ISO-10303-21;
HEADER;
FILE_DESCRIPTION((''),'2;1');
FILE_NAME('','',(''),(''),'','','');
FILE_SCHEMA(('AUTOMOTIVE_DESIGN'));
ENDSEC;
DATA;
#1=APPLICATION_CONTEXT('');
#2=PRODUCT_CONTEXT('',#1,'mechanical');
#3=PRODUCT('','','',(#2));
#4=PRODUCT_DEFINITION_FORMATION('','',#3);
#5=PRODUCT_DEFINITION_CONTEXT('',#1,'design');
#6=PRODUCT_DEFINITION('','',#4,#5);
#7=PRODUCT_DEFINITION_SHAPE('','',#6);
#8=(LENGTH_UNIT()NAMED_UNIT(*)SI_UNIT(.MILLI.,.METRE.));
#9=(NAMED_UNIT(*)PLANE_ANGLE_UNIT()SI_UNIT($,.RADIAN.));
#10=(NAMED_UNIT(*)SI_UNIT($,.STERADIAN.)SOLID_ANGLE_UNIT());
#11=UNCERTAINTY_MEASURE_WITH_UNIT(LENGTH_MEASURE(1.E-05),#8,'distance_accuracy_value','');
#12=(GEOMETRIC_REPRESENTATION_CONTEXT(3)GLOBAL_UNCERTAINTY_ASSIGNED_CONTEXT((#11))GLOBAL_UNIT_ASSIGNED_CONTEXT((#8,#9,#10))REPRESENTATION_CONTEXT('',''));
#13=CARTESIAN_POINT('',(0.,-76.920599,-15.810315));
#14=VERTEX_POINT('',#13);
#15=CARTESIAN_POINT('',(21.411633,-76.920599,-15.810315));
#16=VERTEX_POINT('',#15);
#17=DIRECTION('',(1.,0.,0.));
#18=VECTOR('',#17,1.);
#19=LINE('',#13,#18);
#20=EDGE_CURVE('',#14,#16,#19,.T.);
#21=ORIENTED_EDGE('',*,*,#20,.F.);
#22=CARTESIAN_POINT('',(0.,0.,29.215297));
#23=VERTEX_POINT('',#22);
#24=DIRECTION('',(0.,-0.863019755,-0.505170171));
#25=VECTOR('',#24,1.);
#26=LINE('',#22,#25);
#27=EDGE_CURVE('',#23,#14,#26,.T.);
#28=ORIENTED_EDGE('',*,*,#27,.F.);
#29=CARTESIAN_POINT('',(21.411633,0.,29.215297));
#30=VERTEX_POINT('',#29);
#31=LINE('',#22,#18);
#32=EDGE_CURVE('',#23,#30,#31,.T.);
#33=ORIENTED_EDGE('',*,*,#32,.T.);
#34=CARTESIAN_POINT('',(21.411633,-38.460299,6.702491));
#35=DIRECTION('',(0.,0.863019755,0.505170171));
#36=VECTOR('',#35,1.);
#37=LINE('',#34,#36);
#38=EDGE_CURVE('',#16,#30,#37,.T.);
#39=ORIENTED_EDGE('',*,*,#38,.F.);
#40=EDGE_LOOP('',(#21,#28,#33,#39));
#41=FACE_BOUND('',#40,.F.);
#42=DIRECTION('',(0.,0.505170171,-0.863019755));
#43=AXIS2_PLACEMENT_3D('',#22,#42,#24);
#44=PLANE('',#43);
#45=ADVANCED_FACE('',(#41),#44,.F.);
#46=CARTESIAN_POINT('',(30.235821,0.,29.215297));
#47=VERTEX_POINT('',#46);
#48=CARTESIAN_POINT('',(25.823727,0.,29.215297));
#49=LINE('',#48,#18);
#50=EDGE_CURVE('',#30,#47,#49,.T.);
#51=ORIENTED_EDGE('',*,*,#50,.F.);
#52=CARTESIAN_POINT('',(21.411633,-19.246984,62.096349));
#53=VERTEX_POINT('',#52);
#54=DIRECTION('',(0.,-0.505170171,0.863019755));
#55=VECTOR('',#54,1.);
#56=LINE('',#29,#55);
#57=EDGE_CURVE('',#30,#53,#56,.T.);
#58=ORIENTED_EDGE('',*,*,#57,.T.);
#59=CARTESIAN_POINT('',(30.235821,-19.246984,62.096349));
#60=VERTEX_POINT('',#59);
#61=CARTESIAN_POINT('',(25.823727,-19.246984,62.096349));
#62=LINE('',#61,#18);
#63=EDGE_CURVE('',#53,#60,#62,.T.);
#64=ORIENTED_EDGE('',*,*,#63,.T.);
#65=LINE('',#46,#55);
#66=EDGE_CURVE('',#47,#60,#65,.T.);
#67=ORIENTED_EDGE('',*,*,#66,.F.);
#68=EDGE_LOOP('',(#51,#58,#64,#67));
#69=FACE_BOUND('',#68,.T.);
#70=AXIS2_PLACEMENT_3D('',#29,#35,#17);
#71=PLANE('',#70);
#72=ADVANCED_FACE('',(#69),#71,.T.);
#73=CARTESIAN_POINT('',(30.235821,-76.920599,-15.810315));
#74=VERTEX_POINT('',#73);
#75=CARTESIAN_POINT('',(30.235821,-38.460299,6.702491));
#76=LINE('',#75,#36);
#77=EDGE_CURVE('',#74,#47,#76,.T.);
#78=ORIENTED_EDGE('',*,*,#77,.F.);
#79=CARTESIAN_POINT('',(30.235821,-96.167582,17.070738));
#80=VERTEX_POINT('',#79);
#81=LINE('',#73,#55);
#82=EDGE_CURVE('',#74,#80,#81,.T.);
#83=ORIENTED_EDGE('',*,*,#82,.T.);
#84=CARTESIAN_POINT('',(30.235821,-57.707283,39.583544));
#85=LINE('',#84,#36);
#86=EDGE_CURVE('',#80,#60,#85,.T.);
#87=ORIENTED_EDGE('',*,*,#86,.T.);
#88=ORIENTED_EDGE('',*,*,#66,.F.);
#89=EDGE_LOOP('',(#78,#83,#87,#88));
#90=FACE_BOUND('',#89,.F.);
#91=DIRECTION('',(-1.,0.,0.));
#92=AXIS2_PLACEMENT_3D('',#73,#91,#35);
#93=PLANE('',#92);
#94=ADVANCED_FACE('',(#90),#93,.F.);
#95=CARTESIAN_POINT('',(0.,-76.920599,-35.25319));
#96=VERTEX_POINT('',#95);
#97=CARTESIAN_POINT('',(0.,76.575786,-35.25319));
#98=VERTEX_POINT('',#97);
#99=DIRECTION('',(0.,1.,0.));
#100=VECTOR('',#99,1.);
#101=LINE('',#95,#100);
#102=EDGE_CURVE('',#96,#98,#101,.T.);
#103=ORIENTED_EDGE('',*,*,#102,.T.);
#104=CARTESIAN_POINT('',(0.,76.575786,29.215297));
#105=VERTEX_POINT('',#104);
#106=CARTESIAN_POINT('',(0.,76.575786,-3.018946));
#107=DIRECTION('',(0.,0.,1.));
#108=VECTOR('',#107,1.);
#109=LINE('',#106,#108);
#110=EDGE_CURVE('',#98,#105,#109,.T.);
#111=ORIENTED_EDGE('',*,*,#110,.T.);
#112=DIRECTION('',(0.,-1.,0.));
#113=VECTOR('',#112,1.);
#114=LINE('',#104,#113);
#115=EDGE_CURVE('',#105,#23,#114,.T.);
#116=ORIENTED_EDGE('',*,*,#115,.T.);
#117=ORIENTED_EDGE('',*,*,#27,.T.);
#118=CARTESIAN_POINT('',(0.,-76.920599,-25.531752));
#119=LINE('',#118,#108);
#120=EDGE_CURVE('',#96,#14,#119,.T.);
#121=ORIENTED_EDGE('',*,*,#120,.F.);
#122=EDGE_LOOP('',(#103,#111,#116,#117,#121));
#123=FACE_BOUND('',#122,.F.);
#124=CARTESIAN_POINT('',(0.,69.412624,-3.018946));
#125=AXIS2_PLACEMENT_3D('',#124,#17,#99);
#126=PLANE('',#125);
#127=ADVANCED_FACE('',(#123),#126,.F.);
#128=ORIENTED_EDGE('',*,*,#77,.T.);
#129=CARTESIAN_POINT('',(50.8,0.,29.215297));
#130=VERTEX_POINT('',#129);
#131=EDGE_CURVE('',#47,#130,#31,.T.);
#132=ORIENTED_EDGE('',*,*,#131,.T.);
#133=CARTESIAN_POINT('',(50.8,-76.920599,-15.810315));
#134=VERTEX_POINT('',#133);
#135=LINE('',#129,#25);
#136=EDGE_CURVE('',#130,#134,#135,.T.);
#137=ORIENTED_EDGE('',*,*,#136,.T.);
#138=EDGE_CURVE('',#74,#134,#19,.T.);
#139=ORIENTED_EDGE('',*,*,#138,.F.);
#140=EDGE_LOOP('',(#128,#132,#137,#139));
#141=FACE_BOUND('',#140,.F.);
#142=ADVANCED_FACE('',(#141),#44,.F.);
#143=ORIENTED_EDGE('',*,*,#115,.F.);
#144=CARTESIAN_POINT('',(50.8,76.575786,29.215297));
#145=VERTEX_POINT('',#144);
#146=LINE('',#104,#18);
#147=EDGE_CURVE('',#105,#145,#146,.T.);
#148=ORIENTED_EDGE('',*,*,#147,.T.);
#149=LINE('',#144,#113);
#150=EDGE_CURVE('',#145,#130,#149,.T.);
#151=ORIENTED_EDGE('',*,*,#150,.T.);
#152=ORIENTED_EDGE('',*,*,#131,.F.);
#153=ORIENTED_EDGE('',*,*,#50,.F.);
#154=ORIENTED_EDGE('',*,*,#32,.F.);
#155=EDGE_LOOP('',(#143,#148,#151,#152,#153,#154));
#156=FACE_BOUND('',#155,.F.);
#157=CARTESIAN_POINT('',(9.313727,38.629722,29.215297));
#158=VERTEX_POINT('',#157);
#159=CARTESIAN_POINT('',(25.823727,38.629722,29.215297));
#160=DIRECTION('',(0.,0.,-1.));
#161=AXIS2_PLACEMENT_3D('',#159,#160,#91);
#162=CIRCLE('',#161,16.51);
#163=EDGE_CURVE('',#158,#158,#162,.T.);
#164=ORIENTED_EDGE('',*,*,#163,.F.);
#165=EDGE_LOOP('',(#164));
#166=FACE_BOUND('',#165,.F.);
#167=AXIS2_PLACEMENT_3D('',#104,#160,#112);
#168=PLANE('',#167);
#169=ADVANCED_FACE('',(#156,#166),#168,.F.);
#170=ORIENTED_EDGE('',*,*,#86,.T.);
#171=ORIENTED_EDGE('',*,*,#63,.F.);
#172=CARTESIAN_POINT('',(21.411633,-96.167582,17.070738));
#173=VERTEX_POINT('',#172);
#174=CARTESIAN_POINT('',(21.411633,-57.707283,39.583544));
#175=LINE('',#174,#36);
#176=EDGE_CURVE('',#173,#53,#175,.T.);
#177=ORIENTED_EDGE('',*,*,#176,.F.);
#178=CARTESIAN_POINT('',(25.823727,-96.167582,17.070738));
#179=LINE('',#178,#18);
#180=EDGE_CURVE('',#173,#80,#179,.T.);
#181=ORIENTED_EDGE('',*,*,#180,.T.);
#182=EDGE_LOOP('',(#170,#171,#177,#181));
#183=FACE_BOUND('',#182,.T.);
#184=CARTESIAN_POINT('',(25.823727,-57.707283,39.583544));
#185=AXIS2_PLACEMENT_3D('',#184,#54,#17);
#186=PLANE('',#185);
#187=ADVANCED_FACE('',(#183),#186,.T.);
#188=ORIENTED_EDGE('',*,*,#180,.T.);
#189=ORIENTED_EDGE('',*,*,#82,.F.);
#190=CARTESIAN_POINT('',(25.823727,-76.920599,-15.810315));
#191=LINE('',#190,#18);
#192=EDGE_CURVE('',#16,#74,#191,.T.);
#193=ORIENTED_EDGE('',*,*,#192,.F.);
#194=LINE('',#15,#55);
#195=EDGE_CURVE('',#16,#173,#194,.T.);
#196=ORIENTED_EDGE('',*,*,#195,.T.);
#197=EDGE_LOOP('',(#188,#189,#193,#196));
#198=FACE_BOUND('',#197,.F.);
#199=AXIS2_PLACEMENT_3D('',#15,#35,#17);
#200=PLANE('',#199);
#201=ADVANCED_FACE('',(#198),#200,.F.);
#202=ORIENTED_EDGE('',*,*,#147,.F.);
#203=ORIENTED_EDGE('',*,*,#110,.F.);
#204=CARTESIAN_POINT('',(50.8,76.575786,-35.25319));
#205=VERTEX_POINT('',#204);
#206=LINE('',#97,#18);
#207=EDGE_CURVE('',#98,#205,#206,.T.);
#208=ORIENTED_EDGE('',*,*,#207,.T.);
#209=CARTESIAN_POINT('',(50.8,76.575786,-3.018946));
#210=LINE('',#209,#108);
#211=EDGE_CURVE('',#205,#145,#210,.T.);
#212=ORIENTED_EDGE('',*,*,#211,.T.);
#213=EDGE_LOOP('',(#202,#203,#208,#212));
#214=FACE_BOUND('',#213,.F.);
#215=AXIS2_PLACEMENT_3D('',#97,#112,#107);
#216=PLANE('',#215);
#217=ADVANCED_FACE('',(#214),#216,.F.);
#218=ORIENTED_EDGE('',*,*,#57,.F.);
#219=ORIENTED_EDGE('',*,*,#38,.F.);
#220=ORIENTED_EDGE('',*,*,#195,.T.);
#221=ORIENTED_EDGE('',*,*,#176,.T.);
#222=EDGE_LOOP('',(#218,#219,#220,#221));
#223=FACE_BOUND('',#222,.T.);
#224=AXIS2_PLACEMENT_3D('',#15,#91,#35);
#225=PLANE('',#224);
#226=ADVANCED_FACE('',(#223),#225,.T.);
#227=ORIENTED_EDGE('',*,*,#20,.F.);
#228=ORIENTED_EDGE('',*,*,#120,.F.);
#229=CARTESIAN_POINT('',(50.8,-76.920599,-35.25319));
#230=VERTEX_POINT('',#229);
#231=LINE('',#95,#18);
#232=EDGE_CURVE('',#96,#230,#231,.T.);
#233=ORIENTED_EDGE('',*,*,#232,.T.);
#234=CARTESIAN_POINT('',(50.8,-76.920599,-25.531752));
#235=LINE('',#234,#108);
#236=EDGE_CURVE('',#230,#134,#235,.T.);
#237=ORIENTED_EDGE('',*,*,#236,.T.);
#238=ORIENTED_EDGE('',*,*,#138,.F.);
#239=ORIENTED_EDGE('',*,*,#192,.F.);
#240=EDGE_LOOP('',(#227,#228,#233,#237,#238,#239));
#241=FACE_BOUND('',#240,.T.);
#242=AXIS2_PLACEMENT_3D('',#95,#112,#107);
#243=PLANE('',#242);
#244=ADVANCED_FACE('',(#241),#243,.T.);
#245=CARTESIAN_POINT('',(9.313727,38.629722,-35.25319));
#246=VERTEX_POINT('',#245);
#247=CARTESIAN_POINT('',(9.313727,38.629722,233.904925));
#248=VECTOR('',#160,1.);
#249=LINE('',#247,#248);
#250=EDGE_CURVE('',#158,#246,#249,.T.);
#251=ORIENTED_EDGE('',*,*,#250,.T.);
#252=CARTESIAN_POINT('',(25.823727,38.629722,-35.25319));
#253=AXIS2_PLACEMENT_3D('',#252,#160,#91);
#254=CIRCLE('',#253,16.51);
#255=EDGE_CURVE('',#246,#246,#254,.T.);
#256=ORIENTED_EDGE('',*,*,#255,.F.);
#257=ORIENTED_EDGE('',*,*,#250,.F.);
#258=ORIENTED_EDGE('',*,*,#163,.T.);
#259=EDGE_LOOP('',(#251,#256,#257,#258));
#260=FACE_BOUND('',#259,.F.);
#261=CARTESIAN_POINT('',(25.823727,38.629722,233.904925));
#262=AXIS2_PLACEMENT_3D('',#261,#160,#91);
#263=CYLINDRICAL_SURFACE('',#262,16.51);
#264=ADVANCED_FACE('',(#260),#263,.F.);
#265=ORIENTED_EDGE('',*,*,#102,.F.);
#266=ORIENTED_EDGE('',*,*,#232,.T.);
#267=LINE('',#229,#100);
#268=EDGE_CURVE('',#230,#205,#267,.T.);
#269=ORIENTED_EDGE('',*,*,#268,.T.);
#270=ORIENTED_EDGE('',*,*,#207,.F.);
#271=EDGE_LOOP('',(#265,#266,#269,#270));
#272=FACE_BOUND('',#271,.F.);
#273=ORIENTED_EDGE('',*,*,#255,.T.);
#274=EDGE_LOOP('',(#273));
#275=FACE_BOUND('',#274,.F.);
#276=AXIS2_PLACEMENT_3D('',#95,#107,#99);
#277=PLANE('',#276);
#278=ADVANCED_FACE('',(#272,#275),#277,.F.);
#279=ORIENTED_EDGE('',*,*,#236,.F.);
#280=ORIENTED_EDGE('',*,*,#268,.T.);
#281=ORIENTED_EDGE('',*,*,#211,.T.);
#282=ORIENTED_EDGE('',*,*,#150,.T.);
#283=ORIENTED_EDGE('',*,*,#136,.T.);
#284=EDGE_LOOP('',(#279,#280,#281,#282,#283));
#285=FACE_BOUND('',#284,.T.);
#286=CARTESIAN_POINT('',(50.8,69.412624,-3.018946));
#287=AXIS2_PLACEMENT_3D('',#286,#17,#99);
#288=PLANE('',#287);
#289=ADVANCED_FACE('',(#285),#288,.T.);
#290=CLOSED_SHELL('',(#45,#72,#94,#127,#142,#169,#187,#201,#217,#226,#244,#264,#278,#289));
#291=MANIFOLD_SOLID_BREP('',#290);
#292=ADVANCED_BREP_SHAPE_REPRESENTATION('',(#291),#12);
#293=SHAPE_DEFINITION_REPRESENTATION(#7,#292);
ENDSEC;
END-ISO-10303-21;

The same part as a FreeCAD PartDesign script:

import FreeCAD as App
import Part
import Sketcher
Q = App.Units.Quantity

doc = App.newDocument("Part")
body = doc.addObject("PartDesign::Body", "Body")

# Sketch on YZ plane
sketch1 = body.newObject("Sketcher::SketchObject", "Sketch")
sketch1.AttachmentSupport = (doc.getObject("YZ_Plane"), [""])
sketch1.MapMode = "FlatFace"
sketch1.addGeometry(Part.LineSegment(App.Vector(77, -35, 0), App.Vector(77, 29, 0)), False)
sketch1.addGeometry(Part.LineSegment(App.Vector(77, 29, 0), App.Vector(0, 29, 0)), False)
sketch1.addGeometry(Part.LineSegment(App.Vector(0, 29, 0), App.Vector(-77, -16, 0)), False)
sketch1.addGeometry(Part.LineSegment(App.Vector(-77, -16, 0), App.Vector(-77, -35, 0)), False)
sketch1.addGeometry(Part.LineSegment(App.Vector(-77, -35, 0), App.Vector(77, -35, 0)), False)
sketch1.addConstraint(Sketcher.Constraint("Coincident", 0, 2, 1, 1))
sketch1.addConstraint(Sketcher.Constraint("Coincident", 1, 2, 2, 1))
sketch1.addConstraint(Sketcher.Constraint("Coincident", 2, 2, 3, 1))
sketch1.addConstraint(Sketcher.Constraint("Coincident", 3, 2, 4, 1))
sketch1.addConstraint(Sketcher.Constraint("Coincident", 4, 2, 0, 1))
sketch1.addConstraint(Sketcher.Constraint("Vertical", 0))
sketch1.addConstraint(Sketcher.Constraint("Horizontal", 1))
sketch1.addConstraint(Sketcher.Constraint("Vertical", 3))
sketch1.addConstraint(Sketcher.Constraint("Horizontal", 4))
sketch1.addConstraint(Sketcher.Constraint("PointOnObject", 1, 2, -2))
sketch1.addConstraint(Sketcher.Constraint("DistanceX", 2, 2, -1, 1, 76.920599))
sketch1.addConstraint(Sketcher.Constraint("DistanceX", 1, 2, 1, 1, 76.575786))
sketch1.addConstraint(Sketcher.Constraint("DistanceY", 0, 1, 0, 2, 64.468486))
sketch1.addConstraint(Sketcher.Constraint("DistanceY", 3, 2, 3, 1, 19.442875))
sketch1.addConstraint(Sketcher.Constraint("DistanceY", 3, 2, -1, 1, 35.25319))
pad1 = body.newObject("PartDesign::Pad", "Pad")
pad1.Profile = sketch1
pad1.Length = Q("2 in")

# Sketch on an angled plane
sketch2 = body.newObject("Sketcher::SketchObject", "Sketch001")
sketch2.Placement = App.Placement(App.Vector(0, -12.737047, 21.759644), App.Rotation(App.Vector(1, 0, 0), App.Vector(0, 0.863019755, 0.505170171), App.Vector(0, -0.505170171, 0.863019755), "ZXY"))
sketch2.addGeometry(Part.LineSegment(App.Vector(21, 15, 0), App.Vector(21, -74, 0)), False)
sketch2.addGeometry(Part.LineSegment(App.Vector(21, -74, 0), App.Vector(30, -74, 0)), False)
sketch2.addGeometry(Part.LineSegment(App.Vector(30, -74, 0), App.Vector(30, 15, 0)), False)
sketch2.addGeometry(Part.LineSegment(App.Vector(30, 15, 0), App.Vector(21, 15, 0)), False)
sketch2.addConstraint(Sketcher.Constraint("Coincident", 0, 2, 1, 1))
sketch2.addConstraint(Sketcher.Constraint("Coincident", 1, 2, 2, 1))
sketch2.addConstraint(Sketcher.Constraint("Coincident", 2, 2, 3, 1))
sketch2.addConstraint(Sketcher.Constraint("Coincident", 3, 2, 0, 1))
sketch2.addConstraint(Sketcher.Constraint("Vertical", 0))
sketch2.addConstraint(Sketcher.Constraint("Horizontal", 1))
sketch2.addConstraint(Sketcher.Constraint("Vertical", 2))
sketch2.addConstraint(Sketcher.Constraint("Horizontal", 3))
sketch2.addConstraint(Sketcher.Constraint("DistanceX", 1, 1, 1, 2, 8.824188))
sketch2.addConstraint(Sketcher.Constraint("DistanceY", 0, 2, 0, 1, 89.129592))
sketch2.addConstraint(Sketcher.Constraint("DistanceX", -1, 1, 1, 2, 30.235821))
sketch2.addConstraint(Sketcher.Constraint("DistanceY", 0, 2, -1, 1, 74.370896))
pad2 = body.newObject("PartDesign::Pad", "Pad001")
pad2.Profile = sketch2
pad2.Length = Q("1.5 in")

# Sketch on XY plane
sketch3 = body.newObject("Sketcher::SketchObject", "Sketch002")
sketch3.AttachmentSupport = (doc.getObject("XY_Plane"), [""])
sketch3.MapMode = "FlatFace"
sketch3.AttachmentOffset = App.Placement(App.Vector(0, 0, 29.215297), App.Rotation())
sketch3.addGeometry(Part.Circle(App.Vector(26, 39, 0), App.Vector(0, 0, 1), 17), False)
sketch3.addConstraint(Sketcher.Constraint("Diameter", 0, Q("1.3 in")))
sketch3.addConstraint(Sketcher.Constraint("DistanceY", -1, 1, 0, 3, 38.629722))
sketch3.addConstraint(Sketcher.Constraint("DistanceX", -1, 1, 0, 3, 25.823727))
doc.recompute()
hole = body.newObject("PartDesign::Hole", "Hole")
hole.Profile = sketch3
hole.ThreadType = "None"
hole.Diameter = Q("1.3 in")
hole.DepthType = "ThroughAll"

doc.recompute()
